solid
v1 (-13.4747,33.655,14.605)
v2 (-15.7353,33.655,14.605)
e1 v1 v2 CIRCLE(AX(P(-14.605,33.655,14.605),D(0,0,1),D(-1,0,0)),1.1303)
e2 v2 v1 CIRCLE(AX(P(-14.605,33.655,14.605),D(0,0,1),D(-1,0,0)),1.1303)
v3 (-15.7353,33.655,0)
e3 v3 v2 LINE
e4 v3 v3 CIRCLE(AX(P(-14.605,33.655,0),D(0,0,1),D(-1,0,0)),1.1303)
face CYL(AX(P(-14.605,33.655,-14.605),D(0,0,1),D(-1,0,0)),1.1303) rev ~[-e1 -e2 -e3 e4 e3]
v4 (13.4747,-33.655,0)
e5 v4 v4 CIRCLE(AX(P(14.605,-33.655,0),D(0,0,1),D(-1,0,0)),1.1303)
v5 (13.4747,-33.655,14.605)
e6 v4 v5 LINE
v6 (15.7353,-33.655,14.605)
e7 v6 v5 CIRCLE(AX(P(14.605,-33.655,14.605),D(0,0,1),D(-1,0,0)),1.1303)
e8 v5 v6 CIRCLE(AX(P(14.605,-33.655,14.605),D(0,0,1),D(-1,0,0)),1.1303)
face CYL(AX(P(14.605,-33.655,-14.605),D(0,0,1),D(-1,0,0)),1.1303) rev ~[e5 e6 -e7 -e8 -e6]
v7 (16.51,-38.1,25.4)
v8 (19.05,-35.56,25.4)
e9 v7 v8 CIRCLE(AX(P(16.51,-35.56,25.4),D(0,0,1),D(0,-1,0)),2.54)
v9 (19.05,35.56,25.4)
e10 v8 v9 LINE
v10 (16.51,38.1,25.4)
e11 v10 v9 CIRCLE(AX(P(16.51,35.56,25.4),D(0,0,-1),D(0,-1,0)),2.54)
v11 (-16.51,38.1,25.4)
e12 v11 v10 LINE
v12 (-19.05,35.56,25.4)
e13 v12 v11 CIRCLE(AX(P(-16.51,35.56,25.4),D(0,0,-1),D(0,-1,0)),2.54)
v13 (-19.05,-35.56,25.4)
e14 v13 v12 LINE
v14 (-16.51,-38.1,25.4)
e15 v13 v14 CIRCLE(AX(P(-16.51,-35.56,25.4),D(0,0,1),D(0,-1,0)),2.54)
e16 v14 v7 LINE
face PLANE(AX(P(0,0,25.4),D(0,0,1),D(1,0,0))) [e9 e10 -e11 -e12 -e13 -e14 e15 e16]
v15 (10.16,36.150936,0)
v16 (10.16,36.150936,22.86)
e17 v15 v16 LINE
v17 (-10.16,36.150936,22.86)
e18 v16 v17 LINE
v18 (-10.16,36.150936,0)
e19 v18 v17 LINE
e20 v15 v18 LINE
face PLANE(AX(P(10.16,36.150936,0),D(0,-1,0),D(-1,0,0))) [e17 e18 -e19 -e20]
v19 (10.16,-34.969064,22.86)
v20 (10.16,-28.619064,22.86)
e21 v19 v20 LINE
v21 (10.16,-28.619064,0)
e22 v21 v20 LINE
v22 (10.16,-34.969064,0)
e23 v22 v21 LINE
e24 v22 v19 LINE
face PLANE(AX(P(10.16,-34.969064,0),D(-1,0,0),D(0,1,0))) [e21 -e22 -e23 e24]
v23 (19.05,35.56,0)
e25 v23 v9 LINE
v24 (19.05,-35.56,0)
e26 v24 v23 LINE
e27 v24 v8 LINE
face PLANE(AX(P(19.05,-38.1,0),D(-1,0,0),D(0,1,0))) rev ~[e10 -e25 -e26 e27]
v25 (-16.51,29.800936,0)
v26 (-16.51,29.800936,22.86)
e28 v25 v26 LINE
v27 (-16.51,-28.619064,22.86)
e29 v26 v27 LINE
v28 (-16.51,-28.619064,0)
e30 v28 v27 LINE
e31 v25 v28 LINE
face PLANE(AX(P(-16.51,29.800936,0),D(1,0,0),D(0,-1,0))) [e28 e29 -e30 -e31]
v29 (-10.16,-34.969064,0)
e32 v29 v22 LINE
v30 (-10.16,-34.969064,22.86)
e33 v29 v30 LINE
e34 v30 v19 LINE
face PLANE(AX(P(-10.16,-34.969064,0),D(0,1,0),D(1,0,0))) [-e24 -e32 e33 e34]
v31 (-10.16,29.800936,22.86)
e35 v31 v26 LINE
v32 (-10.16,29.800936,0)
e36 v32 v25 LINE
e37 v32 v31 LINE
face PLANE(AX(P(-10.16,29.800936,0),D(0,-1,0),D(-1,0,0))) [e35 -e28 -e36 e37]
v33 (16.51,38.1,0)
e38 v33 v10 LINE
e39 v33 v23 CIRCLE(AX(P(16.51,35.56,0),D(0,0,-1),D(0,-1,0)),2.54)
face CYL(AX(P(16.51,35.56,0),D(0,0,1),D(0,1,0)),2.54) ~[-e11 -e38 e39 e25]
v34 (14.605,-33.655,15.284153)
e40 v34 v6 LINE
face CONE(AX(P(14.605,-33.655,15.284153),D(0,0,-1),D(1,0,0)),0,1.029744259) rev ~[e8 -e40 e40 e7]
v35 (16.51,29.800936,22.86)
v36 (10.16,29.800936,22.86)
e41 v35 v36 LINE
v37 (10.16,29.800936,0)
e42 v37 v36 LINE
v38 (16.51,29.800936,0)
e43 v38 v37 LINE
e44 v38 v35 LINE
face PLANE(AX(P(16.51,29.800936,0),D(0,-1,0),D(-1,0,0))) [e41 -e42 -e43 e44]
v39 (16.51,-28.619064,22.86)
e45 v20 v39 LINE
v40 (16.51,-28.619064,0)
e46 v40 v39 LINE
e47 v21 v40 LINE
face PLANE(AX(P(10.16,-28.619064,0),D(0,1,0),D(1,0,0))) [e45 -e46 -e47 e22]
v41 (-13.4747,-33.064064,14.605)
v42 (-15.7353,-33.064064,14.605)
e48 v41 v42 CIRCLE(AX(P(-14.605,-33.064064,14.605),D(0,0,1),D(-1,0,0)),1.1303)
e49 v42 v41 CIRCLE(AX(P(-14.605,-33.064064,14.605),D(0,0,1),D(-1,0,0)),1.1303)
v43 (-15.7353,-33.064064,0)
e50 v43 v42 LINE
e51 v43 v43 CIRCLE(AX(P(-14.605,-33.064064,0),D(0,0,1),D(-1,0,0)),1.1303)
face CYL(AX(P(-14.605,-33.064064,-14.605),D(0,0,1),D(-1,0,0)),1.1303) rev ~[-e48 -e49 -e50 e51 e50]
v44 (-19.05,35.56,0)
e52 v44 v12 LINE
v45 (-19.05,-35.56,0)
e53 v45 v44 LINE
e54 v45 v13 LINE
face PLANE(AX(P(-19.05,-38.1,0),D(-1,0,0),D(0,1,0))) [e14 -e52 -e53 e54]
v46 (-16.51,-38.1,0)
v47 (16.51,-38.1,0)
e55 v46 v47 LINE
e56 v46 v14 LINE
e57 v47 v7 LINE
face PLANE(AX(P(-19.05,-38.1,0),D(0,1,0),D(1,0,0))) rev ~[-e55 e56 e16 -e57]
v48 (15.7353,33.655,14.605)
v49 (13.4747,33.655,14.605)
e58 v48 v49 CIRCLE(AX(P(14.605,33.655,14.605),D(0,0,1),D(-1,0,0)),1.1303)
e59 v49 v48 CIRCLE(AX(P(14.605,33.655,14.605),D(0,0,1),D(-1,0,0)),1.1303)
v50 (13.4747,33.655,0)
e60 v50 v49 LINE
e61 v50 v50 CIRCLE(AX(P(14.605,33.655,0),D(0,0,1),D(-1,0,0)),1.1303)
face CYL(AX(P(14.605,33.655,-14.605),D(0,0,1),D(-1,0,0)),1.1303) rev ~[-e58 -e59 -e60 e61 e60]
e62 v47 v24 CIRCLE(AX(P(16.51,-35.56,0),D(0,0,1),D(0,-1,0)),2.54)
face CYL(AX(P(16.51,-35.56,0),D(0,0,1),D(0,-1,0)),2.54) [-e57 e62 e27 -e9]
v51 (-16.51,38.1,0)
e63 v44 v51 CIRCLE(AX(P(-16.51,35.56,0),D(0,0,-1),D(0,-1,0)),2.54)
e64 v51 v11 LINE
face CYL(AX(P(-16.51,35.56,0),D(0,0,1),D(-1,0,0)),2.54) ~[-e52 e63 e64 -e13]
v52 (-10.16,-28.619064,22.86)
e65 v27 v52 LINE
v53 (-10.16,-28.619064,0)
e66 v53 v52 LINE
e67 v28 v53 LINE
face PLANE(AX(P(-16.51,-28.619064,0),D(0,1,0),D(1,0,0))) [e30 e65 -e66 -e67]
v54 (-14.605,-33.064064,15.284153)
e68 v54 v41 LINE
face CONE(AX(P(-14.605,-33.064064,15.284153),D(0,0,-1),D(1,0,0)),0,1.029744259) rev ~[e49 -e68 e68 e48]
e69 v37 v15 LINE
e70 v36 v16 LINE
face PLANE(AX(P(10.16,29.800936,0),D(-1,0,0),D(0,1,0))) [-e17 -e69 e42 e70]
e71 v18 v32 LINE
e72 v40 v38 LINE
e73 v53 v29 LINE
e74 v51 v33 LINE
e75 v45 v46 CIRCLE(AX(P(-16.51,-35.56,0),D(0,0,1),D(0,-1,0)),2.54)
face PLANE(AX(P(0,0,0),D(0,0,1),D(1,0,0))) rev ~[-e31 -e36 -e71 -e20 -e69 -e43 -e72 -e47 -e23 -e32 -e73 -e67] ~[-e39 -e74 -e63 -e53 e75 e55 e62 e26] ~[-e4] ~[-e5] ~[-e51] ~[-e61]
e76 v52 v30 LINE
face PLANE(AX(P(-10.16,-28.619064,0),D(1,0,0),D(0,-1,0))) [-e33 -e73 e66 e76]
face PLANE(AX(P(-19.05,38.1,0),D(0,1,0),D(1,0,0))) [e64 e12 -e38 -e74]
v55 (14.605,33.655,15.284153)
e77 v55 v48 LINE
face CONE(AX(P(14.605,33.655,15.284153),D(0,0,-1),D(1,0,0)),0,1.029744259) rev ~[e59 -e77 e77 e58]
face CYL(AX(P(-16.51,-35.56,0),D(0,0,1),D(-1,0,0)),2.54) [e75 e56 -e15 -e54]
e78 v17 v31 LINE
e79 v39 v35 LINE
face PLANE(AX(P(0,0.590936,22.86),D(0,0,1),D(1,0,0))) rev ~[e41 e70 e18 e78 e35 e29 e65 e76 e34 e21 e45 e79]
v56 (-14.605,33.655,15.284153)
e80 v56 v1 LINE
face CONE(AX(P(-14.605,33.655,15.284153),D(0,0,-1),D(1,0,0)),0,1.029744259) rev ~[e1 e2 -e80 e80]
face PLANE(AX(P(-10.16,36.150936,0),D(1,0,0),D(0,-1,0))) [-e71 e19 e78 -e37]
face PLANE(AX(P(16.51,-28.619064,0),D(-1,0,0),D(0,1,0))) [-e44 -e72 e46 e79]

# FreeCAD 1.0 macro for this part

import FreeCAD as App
import Part
import Sketcher

V = App.Vector
Q = App.Units.Quantity


def edges_at(feature, points):
    """Names of the edges that pass closest to the given points."""
    edges = feature.Shape.Edges
    near = lambda p: min(range(len(edges)), key=lambda i: edges[i].distToShape(Part.Vertex(*p))[0])
    return sorted({f"Edge{near(p) + 1}" for p in points})


def add_polygon(sketch, points):
    """Adds a closed chain of lines whose ends are joined by coincident constraints."""
    first, n = sketch.GeometryCount, len(points)
    for a, b in zip(points, points[1:] + points[:1]):
        sketch.addGeometry(Part.LineSegment(App.Vector(*a, 0), App.Vector(*b, 0)), False)
    for i in range(n):
        sketch.addConstraint(Sketcher.Constraint("Coincident", first + i, 2, first + (i + 1) % n, 1))

doc = App.newDocument("Part")
body = doc.addObject("PartDesign::Body", "Body")

sketch1 = body.newObject("Sketcher::SketchObject", "Sketch")
sketch1.AttachmentSupport = (doc.getObject("XY_Plane"), [""])
sketch1.MapMode = "FlatFace"
add_polygon(sketch1, [(-19.05, 38.1), (-19.05, -38.1), (19.05, -38.1), (19.05, 38.1)])
sketch1.addConstraint(Sketcher.Constraint("Vertical", 0))
sketch1.addConstraint(Sketcher.Constraint("Horizontal", 1))
sketch1.addConstraint(Sketcher.Constraint("Vertical", 2))
sketch1.addConstraint(Sketcher.Constraint("Horizontal", 3))
sketch1.addConstraint(Sketcher.Constraint("Symmetric", 0, 2, 2, 2, -1, 1))
sketch1.addConstraint(Sketcher.Constraint("DistanceY", 0, 2, 0, 1, Q("3 in")))
sketch1.addConstraint(Sketcher.Constraint("DistanceX", 1, 1, 1, 2, Q("1.5 in")))
pad1 = body.newObject("PartDesign::Pad", "Pad")
pad1.Profile = sketch1
pad1.Length = Q("1 in")

sketch2 = body.newObject("Sketcher::SketchObject", "Sketch001")
sketch2.AttachmentSupport = (doc.getObject("XY_Plane"), [""])
sketch2.MapMode = "FlatFace"
add_polygon(sketch2, [(10.16, 36.150936), (-10.16, 36.150936), (-10.16, 29.800936), (-16.51, 29.800936), (-16.51, -28.619064), (-10.16, -28.619064), (-10.16, -34.969064), (10.16, -34.969064), (10.16, -28.619064), (16.51, -28.619064), (16.51, 29.800936), (10.16, 29.800936)])
sketch2.addConstraint(Sketcher.Constraint("Horizontal", 0))
sketch2.addConstraint(Sketcher.Constraint("Vertical", 1))
sketch2.addConstraint(Sketcher.Constraint("Horizontal", 2))
sketch2.addConstraint(Sketcher.Constraint("Vertical", 3))
sketch2.addConstraint(Sketcher.Constraint("Horizontal", 4))
sketch2.addConstraint(Sketcher.Constraint("Vertical", 5))
sketch2.addConstraint(Sketcher.Constraint("Horizontal", 6))
sketch2.addConstraint(Sketcher.Constraint("Vertical", 7))
sketch2.addConstraint(Sketcher.Constraint("Horizontal", 8))
sketch2.addConstraint(Sketcher.Constraint("Vertical", 9))
sketch2.addConstraint(Sketcher.Constraint("Horizontal", 10))
sketch2.addConstraint(Sketcher.Constraint("Vertical", 11))
sketch2.addConstraint(Sketcher.Constraint("Symmetric", 4, 2, 7, 2, -2))
sketch2.addConstraint(Sketcher.Constraint("Symmetric", 2, 2, 9, 2, -2))
sketch2.addConstraint(Sketcher.Constraint("Vertical", 1, 2, 4, 2))
sketch2.addConstraint(Sketcher.Constraint("Vertical", 7, 2, 10, 2))
sketch2.addConstraint(Sketcher.Constraint("Equal", 10, 1))
sketch2.addConstraint(Sketcher.Constraint("Equal", 1, 5))
sketch2.addConstraint(Sketcher.Constraint("DistanceX", 0, 2, 0, 1, Q("0.8 in")))
sketch2.addConstraint(Sketcher.Constraint("DistanceY", 3, 2, 3, 1, Q("2.3 in")))
sketch2.addConstraint(Sketcher.Constraint("DistanceX", 2, 2, 2, 1, Q("0.25 in")))
sketch2.addConstraint(Sketcher.Constraint("DistanceY", -1, 1, 0, 2, 36.150936))
pocket1 = body.newObject("PartDesign::Pocket", "Pocket")
pocket1.Profile = sketch2
pocket1.Length = Q("0.9 in")
pocket1.Reversed = True

sketch3 = body.newObject("Sketcher::SketchObject", "Sketch002")
sketch3.AttachmentSupport = (doc.getObject("XY_Plane"), [""])
sketch3.MapMode = "FlatFace"
sketch3.addGeometry(Part.Circle(V(-14.605, 33.655, 0), V(0, 0, 1), 1.1303), False)
sketch3.addGeometry(Part.Circle(V(14.605, 33.655, 0), V(0, 0, 1), 1.1303), False)
sketch3.addGeometry(Part.Circle(V(14.605, -33.655, 0), V(0, 0, 1), 1.1303), False)
sketch3.addGeometry(Part.Circle(V(-14.605, -33.064064, 0), V(0, 0, 1), 1.1303), False)
sketch3.addConstraint(Sketcher.Constraint("Equal", 0, 1))
sketch3.addConstraint(Sketcher.Constraint("Equal", 1, 2))
sketch3.addConstraint(Sketcher.Constraint("Equal", 2, 3))
sketch3.addConstraint(Sketcher.Constraint("Symmetric", 0, 3, 2, 3, -1, 1))
sketch3.addConstraint(Sketcher.Constraint("Symmetric", 0, 3, 1, 3, -2))
sketch3.addConstraint(Sketcher.Constraint("Vertical", 0, 3, 3, 3))
sketch3.addConstraint(Sketcher.Constraint("Diameter", 0, Q("0.089 in")))
sketch3.addConstraint(Sketcher.Constraint("DistanceX", 0, 3, 1, 3, Q("1.15 in")))
sketch3.addConstraint(Sketcher.Constraint("DistanceY", 2, 3, 1, 3, Q("2.65 in")))
sketch3.addConstraint(Sketcher.Constraint("DistanceY", 3, 3, -1, 1, 33.064064))
doc.recompute()
hole = body.newObject("PartDesign::Hole", "Hole")
hole.Profile = sketch3
hole.ThreadType = "None"
hole.Diameter = Q("0.089 in")
hole.DepthType = "Dimension"
hole.Depth = Q("0.575 in")
hole.DrillPoint = "Angled"
hole.DrillPointAngle = 118
hole.Reversed = True
doc.recompute()

fillet = body.newObject("PartDesign::Fillet", "Fillet")
fillet.Base = (hole, edges_at(hole, [
    (19.05, -38.1, 12.7),
    (-19.05, -38.1, 12.7),
    (-19.05, 38.1, 12.7),
    (19.05, 38.1, 12.7),
]))
fillet.Radius = Q("0.1 in")

doc.recompute()
